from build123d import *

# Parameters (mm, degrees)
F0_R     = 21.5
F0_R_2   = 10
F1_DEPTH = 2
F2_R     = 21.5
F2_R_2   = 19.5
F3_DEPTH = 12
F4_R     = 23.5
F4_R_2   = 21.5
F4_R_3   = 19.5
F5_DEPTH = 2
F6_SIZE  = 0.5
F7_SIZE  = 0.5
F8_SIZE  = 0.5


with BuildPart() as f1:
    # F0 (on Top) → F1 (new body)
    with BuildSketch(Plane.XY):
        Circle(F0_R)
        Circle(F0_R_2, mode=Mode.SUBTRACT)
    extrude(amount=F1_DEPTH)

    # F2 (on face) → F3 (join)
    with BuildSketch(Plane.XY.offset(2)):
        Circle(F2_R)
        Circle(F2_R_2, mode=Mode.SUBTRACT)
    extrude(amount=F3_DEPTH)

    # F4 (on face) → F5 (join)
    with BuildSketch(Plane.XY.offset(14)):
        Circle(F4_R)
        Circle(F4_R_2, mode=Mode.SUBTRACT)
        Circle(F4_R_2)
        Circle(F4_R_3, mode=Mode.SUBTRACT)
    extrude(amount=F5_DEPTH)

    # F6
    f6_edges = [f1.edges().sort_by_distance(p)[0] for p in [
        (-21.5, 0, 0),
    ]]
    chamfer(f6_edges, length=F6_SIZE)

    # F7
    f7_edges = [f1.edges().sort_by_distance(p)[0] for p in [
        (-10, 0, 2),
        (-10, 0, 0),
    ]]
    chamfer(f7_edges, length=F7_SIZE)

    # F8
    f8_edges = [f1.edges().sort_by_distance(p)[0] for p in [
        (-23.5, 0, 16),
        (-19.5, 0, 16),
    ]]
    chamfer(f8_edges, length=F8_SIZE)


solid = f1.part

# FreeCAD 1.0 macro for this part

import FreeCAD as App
import Part
import Sketcher
from FreeCAD import Vector


def edges_at(feature, points):
    """Names of the edges that pass closest to the given points."""
    edges = feature.Shape.Edges
    near = lambda p: min(range(len(edges)), key=lambda i: edges[i].distToShape(Part.Vertex(*p))[0])
    return sorted({f"Edge{near(p) + 1}" for p in points})

doc = App.newDocument("Part")
body = doc.addObject("PartDesign::Body", "Body")

sketch1 = body.newObject("Sketcher::SketchObject", "Sketch")
sketch1.AttachmentSupport = (doc.getObject("XY_Plane"), [""])
sketch1.MapMode = "FlatFace"
sketch1.addGeometry([
    Part.Circle(Vector(0, 0, 0), Vector(0, 0, 1), 21.5),
    Part.Circle(Vector(0, 0, 0), Vector(0, 0, 1), 10),
], False)
sketch1.addConstraint([
    Sketcher.Constraint("Coincident", 0, 3, -1, 1),
    Sketcher.Constraint("Coincident", 1, 3, -1, 1),
    Sketcher.Constraint("Diameter", 0, 43.0),
    Sketcher.Constraint("Diameter", 1, 20.0),
])
pad1 = body.newObject("PartDesign::Pad", "Pad")
pad1.Profile = sketch1
pad1.Length = 2

sketch2 = body.newObject("Sketcher::SketchObject", "Sketch001")
sketch2.AttachmentSupport = (doc.getObject("XY_Plane"), [""])
sketch2.MapMode = "FlatFace"
sketch2.AttachmentOffset = App.Placement(Vector(0, 0, 2), App.Rotation())
sketch2.addGeometry([
    Part.Circle(Vector(0, 0, 0), Vector(0, 0, 1), 21.5),
    Part.Circle(Vector(0, 0, 0), Vector(0, 0, 1), 19.5),
], False)
sketch2.addConstraint([
    Sketcher.Constraint("Coincident", 0, 3, -1, 1),
    Sketcher.Constraint("Coincident", 1, 3, -1, 1),
    Sketcher.Constraint("Diameter", 0, 43.0),
    Sketcher.Constraint("Diameter", 1, 39.0),
])
pad2 = body.newObject("PartDesign::Pad", "Pad001")
pad2.Profile = sketch2
pad2.Length = 12

sketch3 = body.newObject("Sketcher::SketchObject", "Sketch002")
sketch3.AttachmentSupport = (doc.getObject("XY_Plane"), [""])
sketch3.MapMode = "FlatFace"
sketch3.AttachmentOffset = App.Placement(Vector(0, 0, 14), App.Rotation())
sketch3.addGeometry([
    Part.Circle(Vector(0, 0, 0), Vector(0, 0, 1), 23.5),
    Part.Circle(Vector(0, 0, 0), Vector(0, 0, 1), 19.5),
], False)
sketch3.addConstraint([
    Sketcher.Constraint("Coincident", 0, 3, -1, 1),
    Sketcher.Constraint("Coincident", 1, 3, -1, 1),
    Sketcher.Constraint("Diameter", 0, 47.0),
    Sketcher.Constraint("Diameter", 1, 39.0),
])
pad3 = body.newObject("PartDesign::Pad", "Pad002")
pad3.Profile = sketch3
pad3.Length = 2
doc.recompute()

chamfer = body.newObject("PartDesign::Chamfer", "Chamfer")
chamfer.Base = (pad3, edges_at(pad3, [(-21.5, 0, 0)]))
chamfer.Size = 0.5
doc.recompute()

chamfer2 = body.newObject("PartDesign::Chamfer", "Chamfer001")
chamfer2.Base = (chamfer, edges_at(chamfer, [(-10, 0, 2), (-10, 0, 0)]))
chamfer2.Size = 0.5
doc.recompute()

chamfer3 = body.newObject("PartDesign::Chamfer", "Chamfer002")
chamfer3.Base = (chamfer2, edges_at(chamfer2, [(-23.5, 0, 16), (-19.5, 0, 16)]))
chamfer3.Size = 0.5

doc.recompute()
